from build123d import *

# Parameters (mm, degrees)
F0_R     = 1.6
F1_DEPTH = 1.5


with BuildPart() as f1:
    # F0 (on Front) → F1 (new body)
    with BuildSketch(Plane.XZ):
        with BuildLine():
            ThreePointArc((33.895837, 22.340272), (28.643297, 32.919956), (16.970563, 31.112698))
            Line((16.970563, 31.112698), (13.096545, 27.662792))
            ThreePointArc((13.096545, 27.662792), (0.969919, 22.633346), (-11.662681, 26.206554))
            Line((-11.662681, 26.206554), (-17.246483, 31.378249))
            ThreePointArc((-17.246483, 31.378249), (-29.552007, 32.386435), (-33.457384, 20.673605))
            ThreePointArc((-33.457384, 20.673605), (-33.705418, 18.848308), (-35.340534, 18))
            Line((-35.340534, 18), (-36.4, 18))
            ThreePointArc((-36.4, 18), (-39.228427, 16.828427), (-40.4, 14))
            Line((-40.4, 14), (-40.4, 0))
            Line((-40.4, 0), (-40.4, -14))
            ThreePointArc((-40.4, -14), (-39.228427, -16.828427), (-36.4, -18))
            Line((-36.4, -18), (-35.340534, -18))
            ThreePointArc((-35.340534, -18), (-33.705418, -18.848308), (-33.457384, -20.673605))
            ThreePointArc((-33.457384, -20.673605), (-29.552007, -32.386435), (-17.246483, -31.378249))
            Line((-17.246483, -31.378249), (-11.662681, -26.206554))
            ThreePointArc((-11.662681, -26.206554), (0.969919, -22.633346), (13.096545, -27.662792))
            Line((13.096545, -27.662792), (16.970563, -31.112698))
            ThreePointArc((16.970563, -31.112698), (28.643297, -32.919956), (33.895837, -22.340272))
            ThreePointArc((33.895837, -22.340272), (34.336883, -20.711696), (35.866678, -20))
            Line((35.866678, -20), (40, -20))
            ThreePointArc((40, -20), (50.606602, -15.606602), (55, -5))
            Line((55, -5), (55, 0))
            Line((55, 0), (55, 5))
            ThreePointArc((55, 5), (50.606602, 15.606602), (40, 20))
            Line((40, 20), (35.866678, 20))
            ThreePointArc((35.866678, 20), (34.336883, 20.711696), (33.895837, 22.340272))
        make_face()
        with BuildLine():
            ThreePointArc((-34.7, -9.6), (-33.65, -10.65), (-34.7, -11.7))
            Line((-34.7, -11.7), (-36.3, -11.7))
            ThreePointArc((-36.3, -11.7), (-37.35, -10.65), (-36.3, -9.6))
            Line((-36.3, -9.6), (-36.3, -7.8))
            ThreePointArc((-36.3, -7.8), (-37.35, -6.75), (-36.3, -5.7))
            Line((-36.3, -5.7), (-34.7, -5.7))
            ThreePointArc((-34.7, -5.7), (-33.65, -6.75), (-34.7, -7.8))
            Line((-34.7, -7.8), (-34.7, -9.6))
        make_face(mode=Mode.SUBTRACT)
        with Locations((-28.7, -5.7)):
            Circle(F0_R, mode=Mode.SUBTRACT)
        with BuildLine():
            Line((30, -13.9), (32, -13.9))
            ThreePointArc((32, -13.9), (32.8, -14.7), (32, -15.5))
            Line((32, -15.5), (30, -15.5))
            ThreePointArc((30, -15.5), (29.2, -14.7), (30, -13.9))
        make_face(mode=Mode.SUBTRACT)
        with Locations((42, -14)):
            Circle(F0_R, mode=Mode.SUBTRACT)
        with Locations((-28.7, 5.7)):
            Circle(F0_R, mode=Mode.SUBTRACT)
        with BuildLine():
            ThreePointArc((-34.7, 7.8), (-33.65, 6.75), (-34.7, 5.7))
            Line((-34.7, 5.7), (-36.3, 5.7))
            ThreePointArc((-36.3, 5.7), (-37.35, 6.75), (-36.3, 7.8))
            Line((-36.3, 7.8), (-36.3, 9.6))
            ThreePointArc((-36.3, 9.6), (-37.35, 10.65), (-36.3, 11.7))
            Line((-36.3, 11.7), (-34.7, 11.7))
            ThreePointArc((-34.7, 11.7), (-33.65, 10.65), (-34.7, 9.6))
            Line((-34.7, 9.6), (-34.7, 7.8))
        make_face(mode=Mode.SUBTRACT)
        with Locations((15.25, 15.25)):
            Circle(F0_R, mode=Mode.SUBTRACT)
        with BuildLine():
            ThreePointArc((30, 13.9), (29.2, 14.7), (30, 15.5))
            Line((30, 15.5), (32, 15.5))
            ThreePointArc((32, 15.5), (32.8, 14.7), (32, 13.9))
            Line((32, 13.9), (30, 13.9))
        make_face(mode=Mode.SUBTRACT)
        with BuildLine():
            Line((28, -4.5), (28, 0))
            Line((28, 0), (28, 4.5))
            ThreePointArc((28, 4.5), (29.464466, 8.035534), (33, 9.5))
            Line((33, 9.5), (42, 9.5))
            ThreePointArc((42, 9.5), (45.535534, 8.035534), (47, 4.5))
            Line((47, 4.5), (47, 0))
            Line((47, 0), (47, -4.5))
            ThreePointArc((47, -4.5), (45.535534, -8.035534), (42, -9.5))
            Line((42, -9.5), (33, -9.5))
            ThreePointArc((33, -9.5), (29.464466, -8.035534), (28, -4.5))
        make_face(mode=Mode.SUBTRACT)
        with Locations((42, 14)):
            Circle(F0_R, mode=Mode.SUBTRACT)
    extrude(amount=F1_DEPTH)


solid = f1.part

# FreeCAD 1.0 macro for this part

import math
import FreeCAD as App
import Part
import Sketcher
from FreeCAD import Vector
Q = App.Units.Quantity

doc = App.newDocument("Part")
body = doc.addObject("PartDesign::Body", "Body")

# Sketch on XZ plane
sketch1 = body.newObject("Sketcher::SketchObject", "Sketch")
sketch1.AttachmentSupport = (doc.getObject("XZ_Plane"), [""])
sketch1.MapMode = "FlatFace"
sketch1.addGeometry(Part.ArcOfCircle(Part.Circle(Vector(24, 24, 0), Vector(0, 0, 1), 10), math.radians(-10), math.radians(135)), False)
sketch1.addGeometry(Part.LineSegment(Vector(17, 31.1, 0), Vector(13.1, 27.7, 0)), False)
sketch1.addGeometry(Part.ArcOfCircle(Part.Circle(Vector(-0.2, 42.6, 0), Vector(0, 0, 1), 20), math.radians(-125), math.radians(-48)), False)
sketch1.addGeometry(Part.LineSegment(Vector(-11.7, 26.2, 0), Vector(-17.2, 31.4, 0)), False)
sketch1.addGeometry(Part.ArcOfCircle(Part.Circle(Vector(-24, 24, 0), Vector(0, 0, 1), 10), math.radians(47), math.radians(200)), False)
sketch1.addGeometry(Part.ArcOfCircle(Part.Circle(Vector(-35.3, 20, 0), Vector(0, 0, 1), 2), math.radians(-90), math.radians(20)), False)
sketch1.addGeometry(Part.LineSegment(Vector(-35.3, 18, 0), Vector(-36.4, 18, 0)), False)
sketch1.addGeometry(Part.ArcOfCircle(Part.Circle(Vector(-36.4, 14, 0), Vector(0, 0, 1), 4), math.radians(90), math.radians(180)), False)
sketch1.addGeometry(Part.LineSegment(Vector(-40.4, 14, 0), Vector(-40.4, -14, 0)), False)
sketch1.addGeometry(Part.ArcOfCircle(Part.Circle(Vector(-36.4, -14, 0), Vector(0, 0, 1), 4), math.radians(-180), math.radians(-90)), False)
sketch1.addGeometry(Part.LineSegment(Vector(-36.4, -18, 0), Vector(-35.3, -18, 0)), False)
sketch1.addGeometry(Part.ArcOfCircle(Part.Circle(Vector(-35.3, -20, 0), Vector(0, 0, 1), 2), math.radians(-20), math.radians(90)), False)
sketch1.addGeometry(Part.ArcOfCircle(Part.Circle(Vector(-24, -24, 0), Vector(0, 0, 1), 10), math.radians(160), math.radians(313)), False)
sketch1.addGeometry(Part.LineSegment(Vector(-17.2, -31.4, 0), Vector(-11.7, -26.2, 0)), False)
sketch1.addGeometry(Part.ArcOfCircle(Part.Circle(Vector(-0.2, -42.6, 0), Vector(0, 0, 1), 20), math.radians(48), math.radians(125)), False)
sketch1.addGeometry(Part.LineSegment(Vector(13.1, -27.7, 0), Vector(17, -31.1, 0)), False)
sketch1.addGeometry(Part.ArcOfCircle(Part.Circle(Vector(24, -24, 0), Vector(0, 0, 1), 10), math.radians(-135), math.radians(10)), False)
sketch1.addGeometry(Part.ArcOfCircle(Part.Circle(Vector(35.9, -22, 0), Vector(0, 0, 1), 2), math.radians(90), math.radians(190)), False)
sketch1.addGeometry(Part.LineSegment(Vector(35.9, -20, 0), Vector(40, -20, 0)), False)
sketch1.addGeometry(Part.ArcOfCircle(Part.Circle(Vector(40, -5, 0), Vector(0, 0, 1), 15), math.radians(-90), math.radians(0)), False)
sketch1.addGeometry(Part.LineSegment(Vector(55, -5, 0), Vector(55, 5, 0)), False)
sketch1.addGeometry(Part.ArcOfCircle(Part.Circle(Vector(40, 5, 0), Vector(0, 0, 1), 15), math.radians(0), math.radians(90)), False)
sketch1.addGeometry(Part.LineSegment(Vector(40, 20, 0), Vector(35.9, 20, 0)), False)
sketch1.addGeometry(Part.ArcOfCircle(Part.Circle(Vector(35.9, 22, 0), Vector(0, 0, 1), 2), math.radians(170), math.radians(270)), False)
sketch1.addGeometry(Part.LineSegment(Vector(-34.7, -7.8, 0), Vector(-34.7, -9.6, 0)), False)
sketch1.addGeometry(Part.ArcOfCircle(Part.Circle(Vector(-34.7, -10.7, 0), Vector(0, 0, 1), 1.1), math.radians(-90), math.radians(90)), False)
sketch1.addGeometry(Part.LineSegment(Vector(-34.7, -11.7, 0), Vector(-36.3, -11.7, 0)), False)
sketch1.addGeometry(Part.ArcOfCircle(Part.Circle(Vector(-36.3, -10.7, 0), Vector(0, 0, 1), 1.1), math.radians(90), math.radians(270)), False)
sketch1.addGeometry(Part.LineSegment(Vector(-36.3, -9.6, 0), Vector(-36.3, -7.8, 0)), False)
sketch1.addGeometry(Part.ArcOfCircle(Part.Circle(Vector(-36.3, -6.8, 0), Vector(0, 0, 1), 1.1), math.radians(90), math.radians(270)), False)
sketch1.addGeometry(Part.LineSegment(Vector(-36.3, -5.7, 0), Vector(-34.7, -5.7, 0)), False)
sketch1.addGeometry(Part.ArcOfCircle(Part.Circle(Vector(-34.7, -6.8, 0), Vector(0, 0, 1), 1.1), math.radians(-90), math.radians(90)), False)
sketch1.addGeometry(Part.Circle(Vector(-28.7, -5.7, 0), Vector(0, 0, 1), 1.6), False)
sketch1.addGeometry(Part.ArcOfCircle(Part.Circle(Vector(30, -14.7, 0), Vector(0, 0, 1), 0.8), math.radians(90), math.radians(270)), False)
sketch1.addGeometry(Part.LineSegment(Vector(30, -13.9, 0), Vector(32, -13.9, 0)), False)
sketch1.addGeometry(Part.ArcOfCircle(Part.Circle(Vector(32, -14.7, 0), Vector(0, 0, 1), 0.8), math.radians(-90), math.radians(90)), False)
sketch1.addGeometry(Part.LineSegment(Vector(32, -15.5, 0), Vector(30, -15.5, 0)), False)
sketch1.addGeometry(Part.Circle(Vector(42, -14, 0), Vector(0, 0, 1), 1.6), False)
sketch1.addGeometry(Part.ArcOfCircle(Part.Circle(Vector(33, -4.5, 0), Vector(0, 0, 1), 5), math.radians(180), math.radians(270)), False)
sketch1.addGeometry(Part.LineSegment(Vector(28, -4.5, 0), Vector(28, 4.5, 0)), False)
sketch1.addGeometry(Part.ArcOfCircle(Part.Circle(Vector(33, 4.5, 0), Vector(0, 0, 1), 5), math.radians(90), math.radians(180)), False)
sketch1.addGeometry(Part.LineSegment(Vector(33, 9.5, 0), Vector(42, 9.5, 0)), False)
sketch1.addGeometry(Part.ArcOfCircle(Part.Circle(Vector(42, 4.5, 0), Vector(0, 0, 1), 5), math.radians(0), math.radians(90)), False)
sketch1.addGeometry(Part.LineSegment(Vector(47, 4.5, 0), Vector(47, -4.5, 0)), False)
sketch1.addGeometry(Part.ArcOfCircle(Part.Circle(Vector(42, -4.5, 0), Vector(0, 0, 1), 5), math.radians(-90), math.radians(0)), False)
sketch1.addGeometry(Part.LineSegment(Vector(42, -9.5, 0), Vector(33, -9.5, 0)), False)
sketch1.addGeometry(Part.Circle(Vector(-28.7, 5.7, 0), Vector(0, 0, 1), 1.6), False)
sketch1.addGeometry(Part.LineSegment(Vector(-34.7, 9.6, 0), Vector(-34.7, 7.8, 0)), False)
sketch1.addGeometry(Part.ArcOfCircle(Part.Circle(Vector(-34.7, 6.8, 0), Vector(0, 0, 1), 1.1), math.radians(-90), math.radians(90)), False)
sketch1.addGeometry(Part.LineSegment(Vector(-34.7, 5.7, 0), Vector(-36.3, 5.7, 0)), False)
sketch1.addGeometry(Part.ArcOfCircle(Part.Circle(Vector(-36.3, 6.8, 0), Vector(0, 0, 1), 1.1), math.radians(90), math.radians(270)), False)
sketch1.addGeometry(Part.LineSegment(Vector(-36.3, 7.8, 0), Vector(-36.3, 9.6, 0)), False)
sketch1.addGeometry(Part.ArcOfCircle(Part.Circle(Vector(-36.3, 10.7, 0), Vector(0, 0, 1), 1.1), math.radians(90), math.radians(270)), False)
sketch1.addGeometry(Part.LineSegment(Vector(-36.3, 11.7, 0), Vector(-34.7, 11.7, 0)), False)
sketch1.addGeometry(Part.ArcOfCircle(Part.Circle(Vector(-34.7, 10.7, 0), Vector(0, 0, 1), 1.1), math.radians(-90), math.radians(90)), False)
sketch1.addGeometry(Part.Circle(Vector(15.2, 15.2, 0), Vector(0, 0, 1), 1.6), False)
sketch1.addGeometry(Part.LineSegment(Vector(32, 13.9, 0), Vector(30, 13.9, 0)), False)
sketch1.addGeometry(Part.ArcOfCircle(Part.Circle(Vector(30, 14.7, 0), Vector(0, 0, 1), 0.8), math.radians(90), math.radians(270)), False)
sketch1.addGeometry(Part.LineSegment(Vector(30, 15.5, 0), Vector(32, 15.5, 0)), False)
sketch1.addGeometry(Part.ArcOfCircle(Part.Circle(Vector(32, 14.7, 0), Vector(0, 0, 1), 0.8), math.radians(-90), math.radians(90)), False)
sketch1.addGeometry(Part.Circle(Vector(42, 14, 0), Vector(0, 0, 1), 1.6), False)
sketch1.addConstraint(Sketcher.Constraint("Coincident", 0, 2, 1, 1))
sketch1.addConstraint(Sketcher.Constraint("Tangent", 1, 2, 2, 2))
sketch1.addConstraint(Sketcher.Constraint("Coincident", 2, 1, 3, 1))
sketch1.addConstraint(Sketcher.Constraint("Tangent", 3, 2, 4, 1))
sketch1.addConstraint(Sketcher.Constraint("Tangent", 4, 2, 5, 2))
sketch1.addConstraint(Sketcher.Constraint("Tangent", 5, 1, 6, 1))
sketch1.addConstraint(Sketcher.Constraint("Tangent", 6, 2, 7, 1))
sketch1.addConstraint(Sketcher.Constraint("Tangent", 7, 2, 8, 1))
sketch1.addConstraint(Sketcher.Constraint("Tangent", 8, 2, 9, 1))
sketch1.addConstraint(Sketcher.Constraint("Tangent", 9, 2, 10, 1))
sketch1.addConstraint(Sketcher.Constraint("Tangent", 10, 2, 11, 2))
sketch1.addConstraint(Sketcher.Constraint("Tangent", 11, 1, 12, 1))
sketch1.addConstraint(Sketcher.Constraint("Tangent", 12, 2, 13, 1))
sketch1.addConstraint(Sketcher.Constraint("Coincident", 13, 2, 14, 2))
sketch1.addConstraint(Sketcher.Constraint("Tangent", 14, 1, 15, 1))
sketch1.addConstraint(Sketcher.Constraint("Coincident", 15, 2, 16, 1))
sketch1.addConstraint(Sketcher.Constraint("Tangent", 16, 2, 17, 2))
sketch1.addConstraint(Sketcher.Constraint("Tangent", 17, 1, 18, 1))
sketch1.addConstraint(Sketcher.Constraint("Tangent", 18, 2, 19, 1))
sketch1.addConstraint(Sketcher.Constraint("Tangent", 19, 2, 20, 1))
sketch1.addConstraint(Sketcher.Constraint("Tangent", 20, 2, 21, 1))
sketch1.addConstraint(Sketcher.Constraint("Tangent", 21, 2, 22, 1))
sketch1.addConstraint(Sketcher.Constraint("Tangent", 22, 2, 23, 2))
sketch1.addConstraint(Sketcher.Constraint("Tangent", 23, 1, 0, 1))
sketch1.addConstraint(Sketcher.Constraint("Coincident", 24, 2, 25, 2))
sketch1.addConstraint(Sketcher.Constraint("Tangent", 25, 1, 26, 1))
sketch1.addConstraint(Sketcher.Constraint("Tangent", 26, 2, 27, 2))
sketch1.addConstraint(Sketcher.Constraint("Coincident", 27, 1, 28, 1))
sketch1.addConstraint(Sketcher.Constraint("Coincident", 28, 2, 29, 2))
sketch1.addConstraint(Sketcher.Constraint("Tangent", 29, 1, 30, 1))
sketch1.addConstraint(Sketcher.Constraint("Tangent", 30, 2, 31, 2))
sketch1.addConstraint(Sketcher.Constraint("Coincident", 31, 1, 24, 1))
sketch1.addConstraint(Sketcher.Constraint("Tangent", 33, 1, 34, 1))
sketch1.addConstraint(Sketcher.Constraint("Tangent", 34, 2, 35, 2))
sketch1.addConstraint(Sketcher.Constraint("Tangent", 35, 1, 36, 1))
sketch1.addConstraint(Sketcher.Constraint("Tangent", 36, 2, 33, 2))
sketch1.addConstraint(Sketcher.Constraint("Tangent", 38, 1, 39, 1))
sketch1.addConstraint(Sketcher.Constraint("Tangent", 39, 2, 40, 2))
sketch1.addConstraint(Sketcher.Constraint("Tangent", 40, 1, 41, 1))
sketch1.addConstraint(Sketcher.Constraint("Tangent", 41, 2, 42, 2))
sketch1.addConstraint(Sketcher.Constraint("Tangent", 42, 1, 43, 1))
sketch1.addConstraint(Sketcher.Constraint("Tangent", 43, 2, 44, 2))
sketch1.addConstraint(Sketcher.Constraint("Tangent", 44, 1, 45, 1))
sketch1.addConstraint(Sketcher.Constraint("Tangent", 45, 2, 38, 2))
sketch1.addConstraint(Sketcher.Constraint("Coincident", 47, 2, 48, 2))
sketch1.addConstraint(Sketcher.Constraint("Tangent", 48, 1, 49, 1))
sketch1.addConstraint(Sketcher.Constraint("Tangent", 49, 2, 50, 2))
sketch1.addConstraint(Sketcher.Constraint("Coincident", 50, 1, 51, 1))
sketch1.addConstraint(Sketcher.Constraint("Coincident", 51, 2, 52, 2))
sketch1.addConstraint(Sketcher.Constraint("Tangent", 52, 1, 53, 1))
sketch1.addConstraint(Sketcher.Constraint("Tangent", 53, 2, 54, 2))
sketch1.addConstraint(Sketcher.Constraint("Coincident", 54, 1, 47, 1))
sketch1.addConstraint(Sketcher.Constraint("Tangent", 56, 2, 57, 2))
sketch1.addConstraint(Sketcher.Constraint("Tangent", 57, 1, 58, 1))
sketch1.addConstraint(Sketcher.Constraint("Tangent", 58, 2, 59, 2))
sketch1.addConstraint(Sketcher.Constraint("Tangent", 59, 1, 56, 1))
sketch1.addConstraint(Sketcher.Constraint("Horizontal", 6))
sketch1.addConstraint(Sketcher.Constraint("Vertical", 8))
sketch1.addConstraint(Sketcher.Constraint("Horizontal", 10))
sketch1.addConstraint(Sketcher.Constraint("Horizontal", 18))
sketch1.addConstraint(Sketcher.Constraint("Vertical", 20))
sketch1.addConstraint(Sketcher.Constraint("Horizontal", 22))
sketch1.addConstraint(Sketcher.Constraint("Vertical", 24))
sketch1.addConstraint(Sketcher.Constraint("Horizontal", 26))
sketch1.addConstraint(Sketcher.Constraint("Vertical", 28))
sketch1.addConstraint(Sketcher.Constraint("Horizontal", 30))
sketch1.addConstraint(Sketcher.Constraint("Horizontal", 34))
sketch1.addConstraint(Sketcher.Constraint("Horizontal", 36))
sketch1.addConstraint(Sketcher.Constraint("Vertical", 39))
sketch1.addConstraint(Sketcher.Constraint("Horizontal", 41))
sketch1.addConstraint(Sketcher.Constraint("Vertical", 43))
sketch1.addConstraint(Sketcher.Constraint("Horizontal", 45))
sketch1.addConstraint(Sketcher.Constraint("Vertical", 47))
sketch1.addConstraint(Sketcher.Constraint("Horizontal", 49))
sketch1.addConstraint(Sketcher.Constraint("Vertical", 51))
sketch1.addConstraint(Sketcher.Constraint("Horizontal", 53))
sketch1.addConstraint(Sketcher.Constraint("Horizontal", 56))
sketch1.addConstraint(Sketcher.Constraint("Horizontal", 58))
sketch1.addConstraint(Sketcher.Constraint("Equal", 0, 4))
sketch1.addConstraint(Sketcher.Constraint("Equal", 7, 9))
sketch1.addConstraint(Sketcher.Constraint("Equal", 5, 11))
sketch1.addConstraint(Sketcher.Constraint("Equal", 4, 12))
sketch1.addConstraint(Sketcher.Constraint("Equal", 2, 14))
sketch1.addConstraint(Sketcher.Constraint("Equal", 12, 16))
sketch1.addConstraint(Sketcher.Constraint("Equal", 11, 17))
sketch1.addConstraint(Sketcher.Constraint("Equal", 19, 21))
sketch1.addConstraint(Sketcher.Constraint("Equal", 17, 23))
sketch1.addConstraint(Sketcher.Constraint("Equal", 25, 27))
sketch1.addConstraint(Sketcher.Constraint("Equal", 27, 29))
sketch1.addConstraint(Sketcher.Constraint("Equal", 29, 31))
sketch1.addConstraint(Sketcher.Constraint("Equal", 32, 37))
sketch1.addConstraint(Sketcher.Constraint("Equal", 38, 40))
sketch1.addConstraint(Sketcher.Constraint("Equal", 40, 42))
sketch1.addConstraint(Sketcher.Constraint("Equal", 42, 44))
sketch1.addConstraint(Sketcher.Constraint("Equal", 37, 46))
sketch1.addConstraint(Sketcher.Constraint("Equal", 31, 48))
sketch1.addConstraint(Sketcher.Constraint("Equal", 48, 50))
sketch1.addConstraint(Sketcher.Constraint("Equal", 50, 52))
sketch1.addConstraint(Sketcher.Constraint("Equal", 52, 54))
sketch1.addConstraint(Sketcher.Constraint("Equal", 46, 55))
sketch1.addConstraint(Sketcher.Constraint("Equal", 35, 57))
sketch1.addConstraint(Sketcher.Constraint("Equal", 55, 60))
sketch1.addConstraint(Sketcher.Constraint("Symmetric", 0, 3, 12, 3, -1, 1))
sketch1.addConstraint(Sketcher.Constraint("Symmetric", 4, 3, 16, 3, -1, 1))
sketch1.addConstraint(Sketcher.Constraint("Symmetric", 0, 3, 4, 3, -2))
sketch1.addConstraint(Sketcher.Constraint("Symmetric", 2, 3, 14, 3, -1))
sketch1.addConstraint(Sketcher.Constraint("Symmetric", 32, 3, 46, 3, -1))
sketch1.addConstraint(Sketcher.Constraint("Symmetric", 31, 3, 48, 3, -1))
sketch1.addConstraint(Sketcher.Constraint("Symmetric", 27, 3, 52, 3, -1))
sketch1.addConstraint(Sketcher.Constraint("Symmetric", 33, 3, 57, 3, -1))
sketch1.addConstraint(Sketcher.Constraint("Symmetric", 37, 3, 60, 3, -1))
sketch1.addConstraint(Sketcher.Constraint("Horizontal", 9, 3, 37, 3))
sketch1.addConstraint(Sketcher.Constraint("Horizontal", 7, 3, 60, 3))
sketch1.addConstraint(Sketcher.Constraint("Horizontal", 11, 3, 17, 1))
sketch1.addConstraint(Sketcher.Constraint("Horizontal", 5, 3, 21, 2))
sketch1.addConstraint(Sketcher.Constraint("Horizontal", 32, 3, 29, 1))
sketch1.addConstraint(Sketcher.Constraint("Vertical", 27, 3, 29, 3))
sketch1.addConstraint(Sketcher.Constraint("Vertical", 25, 3, 31, 3))
sketch1.addConstraint(Sketcher.Constraint("Vertical", 37, 3, 42, 3))
sketch1.addConstraint(Sketcher.Constraint("Vertical", 29, 3, 50, 3))
sketch1.addConstraint(Sketcher.Constraint("Vertical", 48, 3, 54, 3))
sketch1.addConstraint(Sketcher.Constraint("Vertical", 35, 3, 59, 3))
sketch1.addConstraint(Sketcher.Constraint("Vertical", 3, 2, 12, 2))
sketch1.addConstraint(Sketcher.Constraint("Vertical", 1, 2, 14, 1))
sketch1.addConstraint(Sketcher.Constraint("Vertical", 54, 3, 24, 2))
sketch1.addConstraint(Sketcher.Constraint("Vertical", 26, 2, 27, 1))
sketch1.addConstraint(Sketcher.Constraint("Vertical", 31, 1, 47, 2))
sketch1.addConstraint(Sketcher.Constraint("Vertical", 49, 2, 50, 1))
sketch1.addConstraint(Sketcher.Constraint("Equal", 45, 39))
sketch1.addConstraint(Sketcher.Constraint("Radius", 0, Q("10 mm")))
sketch1.addConstraint(Sketcher.Constraint("Radius", 5, Q("2 mm")))
sketch1.addConstraint(Sketcher.Constraint("Radius", 7, Q("4 mm")))
sketch1.addConstraint(Sketcher.Constraint("Radius", 19, Q("14.999999 mm")))
sketch1.addConstraint(Sketcher.Constraint("Radius", 38, Q("5 mm")))
sketch1.addConstraint(Sketcher.Constraint("Diameter", 32, Q("3.2 mm")))
sketch1.addConstraint(Sketcher.Constraint("Radius", 33, Q("0.8 mm")))
sketch1.addConstraint(Sketcher.Constraint("DistanceX", 34, 1, 34, 2, Q("2 mm")))
sketch1.addConstraint(Sketcher.Constraint("DistanceX", 41, 1, 41, 2, Q("9 mm")))
sketch1.addConstraint(Sketcher.Constraint("DistanceY", 8, 2, 8, 1, Q("28 mm")))
sketch1.addConstraint(Sketcher.Constraint("Radius", 25, Q("1.05 mm")))
sketch1.addConstraint(Sketcher.Constraint("DistanceX", 26, 2, 26, 1, Q("1.6 mm")))
sketch1.addConstraint(Sketcher.Constraint("DistanceY", 24, 2, 24, 1, Q("1.8 mm")))
sketch1.addConstraint(Sketcher.Constraint("DistanceX", -1, 1, 19, 3, Q("40.000001 mm")))
sketch1.addConstraint(Sketcher.Constraint("DistanceX", -1, 1, 33, 3, Q("30 mm")))
sketch1.addConstraint(Sketcher.Constraint("DistanceX", -1, 1, 37, 3, Q("42 mm")))
sketch1.addConstraint(Sketcher.Constraint("DistanceX", 7, 3, -1, 1, Q("36.4 mm")))
sketch1.addConstraint(Sketcher.Constraint("DistanceX", 25, 3, -1, 1, Q("34.7 mm")))
sketch1.addConstraint(Sketcher.Constraint("DistanceX", 32, 3, -1, 1, Q("28.7 mm")))
sketch1.addConstraint(Sketcher.Constraint("DistanceY", 32, 3, -1, 1, Q("5.7 mm")))
sketch1.addConstraint(Sketcher.Constraint("DistanceY", 33, 3, -1, 1, Q("14.7 mm")))
sketch1.addConstraint(Sketcher.Constraint("DistanceY", 38, 3, -1, 1, Q("4.5 mm")))
sketch1.addConstraint(Sketcher.Constraint("DistanceX", -1, 1, 55, 3, Q("15.25 mm")))
sketch1.addConstraint(Sketcher.Constraint("DistanceY", -1, 1, 55, 3, Q("15.25 mm")))
sketch1.addConstraint(Sketcher.Constraint("Radius", 2, Q("19.999997 mm")))
sketch1.addConstraint(Sketcher.Constraint("DistanceX", 18, 1, 18, 2, Q("4.133322 mm")))
sketch1.addConstraint(Sketcher.Constraint("DistanceY", 15, 2, -1, 1, Q("31.112698 mm")))
sketch1.addConstraint(Sketcher.Constraint("DistanceX", 6, 2, 6, 1, Q("1.059466 mm")))
sketch1.addConstraint(Sketcher.Constraint("DistanceX", 2, 3, -1, 1, Q("0.204371 mm")))
sketch1.addConstraint(Sketcher.Constraint("DistanceY", -1, 1, 2, 3, Q("42.598839 mm")))
sketch1.addConstraint(Sketcher.Constraint("DistanceX", 2, 1, -1, 1, Q("11.662681 mm")))
pad1 = body.newObject("PartDesign::Pad", "Pad")
pad1.Profile = sketch1
pad1.Length = 1.5

doc.recompute()
